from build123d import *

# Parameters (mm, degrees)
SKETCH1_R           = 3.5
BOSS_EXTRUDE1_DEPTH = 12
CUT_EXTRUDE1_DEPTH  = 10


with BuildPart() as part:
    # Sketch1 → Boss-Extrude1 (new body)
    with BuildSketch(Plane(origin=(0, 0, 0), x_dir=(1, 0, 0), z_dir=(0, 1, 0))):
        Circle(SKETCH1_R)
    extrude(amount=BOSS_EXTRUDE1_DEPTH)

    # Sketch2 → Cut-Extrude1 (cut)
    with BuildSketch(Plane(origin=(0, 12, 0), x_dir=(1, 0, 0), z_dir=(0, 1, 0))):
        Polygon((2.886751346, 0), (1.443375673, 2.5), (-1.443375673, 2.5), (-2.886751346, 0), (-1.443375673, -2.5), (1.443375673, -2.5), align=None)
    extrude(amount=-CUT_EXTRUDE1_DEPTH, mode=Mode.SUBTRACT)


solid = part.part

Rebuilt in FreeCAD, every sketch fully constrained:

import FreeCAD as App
import Part
import Sketcher
from FreeCAD import Vector
Q = App.Units.Quantity

doc = App.newDocument("Part")
body = doc.addObject("PartDesign::Body", "Body")

# Sketch on XZ plane
sketch1 = doc.addObject("Sketcher::SketchObject", "Sketch")
body.addObject(sketch1)
sketch1.AttachmentSupport = (doc.XZ_Plane, [""])
sketch1.MapMode = "FlatFace"
sketch1.addGeometry(Part.Circle(Vector(0, 0, 0), Vector(0, 0, 1), 3.5), False)
sketch1.addConstraint([
    Sketcher.Constraint("Coincident", 0, 3, -1, 1),
    Sketcher.Constraint("Diameter", 0, Q("7 mm")),
])
pad1 = doc.addObject("PartDesign::Pad", "Pad")
body.addObject(pad1)
pad1.Profile = sketch1
pad1.Length = 12
pad1.Reversed = True

# Sketch on XZ plane
sketch2 = doc.addObject("Sketcher::SketchObject", "Sketch001")
body.addObject(sketch2)
sketch2.AttachmentSupport = (doc.XZ_Plane, [""])
sketch2.MapMode = "FlatFace"
sketch2.AttachmentOffset = App.Placement(Vector(0, 0, -12), App.Rotation())
sketch2.addGeometry([
    Part.LineSegment(Vector(2.886751, 0, 0), Vector(1.443376, -2.5, 0)),  # 0
    Part.LineSegment(Vector(1.443376, -2.5, 0), Vector(-1.443376, -2.5, 0)),  # 1
    Part.LineSegment(Vector(-1.443376, -2.5, 0), Vector(-2.886751, 0, 0)),  # 2
    Part.LineSegment(Vector(-2.886751, 0, 0), Vector(-1.443376, 2.5, 0)),  # 3
    Part.LineSegment(Vector(-1.443376, 2.5, 0), Vector(1.443376, 2.5, 0)),  # 4
    Part.LineSegment(Vector(1.443376, 2.5, 0), Vector(2.886751, 0, 0)),  # 5
], False)
sketch2.addConstraint([
    Sketcher.Constraint("Coincident", 0, 2, 1, 1),
    Sketcher.Constraint("Coincident", 1, 2, 2, 1),
    Sketcher.Constraint("Coincident", 2, 2, 3, 1),
    Sketcher.Constraint("Coincident", 3, 2, 4, 1),
    Sketcher.Constraint("Coincident", 4, 2, 5, 1),
    Sketcher.Constraint("Coincident", 5, 2, 0, 1),
    Sketcher.Constraint("Horizontal", 1),
    Sketcher.Constraint("Horizontal", 4),
    Sketcher.Constraint("Symmetric", 0, 2, 3, 2, -1, 1),
    Sketcher.Constraint("Symmetric", 2, 2, 5, 2, -1, 1),
    Sketcher.Constraint("PointOnObject", 2, 2, -1),
    Sketcher.Constraint("Parallel", 2, 5),
    Sketcher.Constraint("Vertical", 1, 2, 3, 2),
    Sketcher.Constraint("Angle", 0, Q("-120 deg")),
    Sketcher.Constraint("DistanceY", 1, 2, 3, 2, Q("5 mm")),
    Sketcher.Constraint("DistanceX", 1, 2, 1, 1, Q("2.886751 mm")),
])
pocket1 = doc.addObject("PartDesign::Pocket", "Pocket")
body.addObject(pocket1)
pocket1.Profile = sketch2
pocket1.Length = 10
pocket1.Reversed = True

doc.recompute()
